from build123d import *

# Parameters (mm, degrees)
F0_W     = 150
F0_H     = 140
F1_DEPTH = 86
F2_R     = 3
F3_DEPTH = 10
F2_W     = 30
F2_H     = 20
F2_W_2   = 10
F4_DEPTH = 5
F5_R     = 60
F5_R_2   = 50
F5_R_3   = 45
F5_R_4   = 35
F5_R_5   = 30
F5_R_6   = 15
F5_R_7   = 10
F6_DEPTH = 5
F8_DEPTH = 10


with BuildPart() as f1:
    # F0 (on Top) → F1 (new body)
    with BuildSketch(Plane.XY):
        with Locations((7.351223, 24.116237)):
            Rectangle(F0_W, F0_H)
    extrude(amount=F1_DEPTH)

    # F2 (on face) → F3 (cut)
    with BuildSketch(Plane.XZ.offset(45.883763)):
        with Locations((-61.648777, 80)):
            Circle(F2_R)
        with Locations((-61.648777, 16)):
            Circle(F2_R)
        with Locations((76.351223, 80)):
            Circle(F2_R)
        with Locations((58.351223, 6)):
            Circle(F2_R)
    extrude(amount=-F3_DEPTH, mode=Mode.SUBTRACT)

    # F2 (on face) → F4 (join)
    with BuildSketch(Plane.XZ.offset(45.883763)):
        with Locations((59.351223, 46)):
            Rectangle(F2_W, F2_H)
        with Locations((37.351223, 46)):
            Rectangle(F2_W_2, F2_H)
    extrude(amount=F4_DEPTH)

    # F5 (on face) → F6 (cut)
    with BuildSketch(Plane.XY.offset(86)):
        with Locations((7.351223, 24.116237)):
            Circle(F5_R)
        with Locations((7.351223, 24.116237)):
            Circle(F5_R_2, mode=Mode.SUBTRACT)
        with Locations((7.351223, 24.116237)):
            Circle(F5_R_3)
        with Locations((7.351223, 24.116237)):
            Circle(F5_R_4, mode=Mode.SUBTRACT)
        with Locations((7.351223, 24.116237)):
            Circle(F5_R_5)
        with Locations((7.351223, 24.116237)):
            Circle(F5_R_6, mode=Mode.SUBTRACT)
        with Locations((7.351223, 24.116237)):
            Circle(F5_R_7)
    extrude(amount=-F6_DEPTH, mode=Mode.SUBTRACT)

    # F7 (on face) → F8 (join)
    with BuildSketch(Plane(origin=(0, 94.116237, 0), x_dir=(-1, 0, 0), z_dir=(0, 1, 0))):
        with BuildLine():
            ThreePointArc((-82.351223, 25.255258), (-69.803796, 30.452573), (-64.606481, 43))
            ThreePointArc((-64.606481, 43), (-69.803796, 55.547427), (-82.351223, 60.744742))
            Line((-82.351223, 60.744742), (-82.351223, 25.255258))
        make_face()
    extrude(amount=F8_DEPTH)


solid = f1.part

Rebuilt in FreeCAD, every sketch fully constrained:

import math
import FreeCAD as App
import Part
import Sketcher

doc = App.newDocument("Part")
body = doc.addObject("PartDesign::Body", "Body")

sketch1 = body.newObject("Sketcher::SketchObject", "Sketch")
sketch1.AttachmentSupport = (doc.getObject("XY_Plane"), [""])
sketch1.MapMode = "FlatFace"
sketch1.addGeometry([
    Part.LineSegment(App.Vector(-68, 94, 0), App.Vector(-68, -46, 0)),
    Part.LineSegment(App.Vector(-68, -46, 0), App.Vector(82, -46, 0)),
    Part.LineSegment(App.Vector(82, -46, 0), App.Vector(82, 94, 0)),
    Part.LineSegment(App.Vector(82, 94, 0), App.Vector(-68, 94, 0)),
], False)
sketch1.addConstraint([
    Sketcher.Constraint("Coincident", 0, 2, 1, 1),
    Sketcher.Constraint("Coincident", 1, 2, 2, 1),
    Sketcher.Constraint("Coincident", 2, 2, 3, 1),
    Sketcher.Constraint("Coincident", 3, 2, 0, 1),
    Sketcher.Constraint("Vertical", 0),
    Sketcher.Constraint("Horizontal", 1),
    Sketcher.Constraint("Vertical", 2),
    Sketcher.Constraint("Horizontal", 3),
    Sketcher.Constraint("DistanceX", 1, 1, 1, 2, 150.0),
    Sketcher.Constraint("DistanceY", 0, 2, 0, 1, 140.0),
    Sketcher.Constraint("DistanceX", 0, 2, -1, 1, 67.648777),
    Sketcher.Constraint("DistanceY", 0, 2, -1, 1, 45.883763),
])
pad1 = body.newObject("PartDesign::Pad", "Pad")
pad1.Profile = sketch1
pad1.Length = 86

sketch2 = body.newObject("Sketcher::SketchObject", "Sketch001")
sketch2.AttachmentSupport = (doc.getObject("XZ_Plane"), [""])
sketch2.MapMode = "FlatFace"
sketch2.AttachmentOffset = App.Placement(App.Vector(0, 0, 45.883763), App.Rotation())
sketch2.addGeometry([
    Part.Circle(App.Vector(-61.6, 80, 0), App.Vector(0, 0, 1), 3),
    Part.Circle(App.Vector(-61.6, 16, 0), App.Vector(0, 0, 1), 3),
    Part.Circle(App.Vector(76.4, 80, 0), App.Vector(0, 0, 1), 3),
    Part.Circle(App.Vector(58.4, 6, 0), App.Vector(0, 0, 1), 3),
], False)
sketch2.addConstraint([
    Sketcher.Constraint("Equal", 0, 1),
    Sketcher.Constraint("Equal", 1, 2),
    Sketcher.Constraint("Equal", 2, 3),
    Sketcher.Constraint("Horizontal", 0, 3, 2, 3),
    Sketcher.Constraint("Vertical", 0, 3, 1, 3),
    Sketcher.Constraint("Diameter", 0, 6.0),
    Sketcher.Constraint("DistanceY", -1, 1, 0, 3, 80.0),
    Sketcher.Constraint("DistanceY", -1, 1, 1, 3, 16.0),
    Sketcher.Constraint("DistanceY", -1, 1, 3, 3, 6.0),
    Sketcher.Constraint("DistanceX", 0, 3, 2, 3, 138.0),
    Sketcher.Constraint("DistanceX", 3, 3, 2, 3, 18.0),
    Sketcher.Constraint("DistanceX", 0, 3, -1, 1, 61.648777),
])
pocket1 = body.newObject("PartDesign::Pocket", "Pocket")
pocket1.Profile = sketch2
pocket1.Length = 10

sketch3 = body.newObject("Sketcher::SketchObject", "Sketch002")
sketch3.AttachmentSupport = (doc.getObject("XZ_Plane"), [""])
sketch3.MapMode = "FlatFace"
sketch3.AttachmentOffset = App.Placement(App.Vector(0, 0, 45.883763), App.Rotation())
sketch3.addGeometry([
    Part.LineSegment(App.Vector(44, 56, 0), App.Vector(44, 36, 0)),
    Part.LineSegment(App.Vector(44, 36, 0), App.Vector(74, 36, 0)),
    Part.LineSegment(App.Vector(74, 36, 0), App.Vector(74, 56, 0)),
    Part.LineSegment(App.Vector(74, 56, 0), App.Vector(44, 56, 0)),
    Part.LineSegment(App.Vector(32, 56, 0), App.Vector(32, 36, 0)),
    Part.LineSegment(App.Vector(32, 36, 0), App.Vector(42, 36, 0)),
    Part.LineSegment(App.Vector(42, 36, 0), App.Vector(42, 56, 0)),
    Part.LineSegment(App.Vector(42, 56, 0), App.Vector(32, 56, 0)),
], False)
sketch3.addConstraint([
    Sketcher.Constraint("Coincident", 0, 2, 1, 1),
    Sketcher.Constraint("Coincident", 1, 2, 2, 1),
    Sketcher.Constraint("Coincident", 2, 2, 3, 1),
    Sketcher.Constraint("Coincident", 3, 2, 0, 1),
    Sketcher.Constraint("Coincident", 4, 2, 5, 1),
    Sketcher.Constraint("Coincident", 5, 2, 6, 1),
    Sketcher.Constraint("Coincident", 6, 2, 7, 1),
    Sketcher.Constraint("Coincident", 7, 2, 4, 1),
    Sketcher.Constraint("Vertical", 0),
    Sketcher.Constraint("Horizontal", 1),
    Sketcher.Constraint("Vertical", 2),
    Sketcher.Constraint("Horizontal", 3),
    Sketcher.Constraint("Vertical", 4),
    Sketcher.Constraint("Horizontal", 5),
    Sketcher.Constraint("Vertical", 6),
    Sketcher.Constraint("Horizontal", 7),
    Sketcher.Constraint("Horizontal", 1, 2, 4, 2),
    Sketcher.Constraint("Horizontal", 3, 2, 6, 2),
    Sketcher.Constraint("DistanceX", 1, 1, 1, 2, 30.0),
    Sketcher.Constraint("DistanceX", 5, 1, 5, 2, 10.0),
    Sketcher.Constraint("DistanceY", 0, 2, 0, 1, 20.0),
    Sketcher.Constraint("DistanceY", -1, 1, 0, 2, 36.0),
    Sketcher.Constraint("DistanceX", 4, 2, 0, 2, 12.0),
    Sketcher.Constraint("DistanceX", -1, 1, 0, 2, 44.351223),
])
pad2 = body.newObject("PartDesign::Pad", "Pad001")
pad2.Profile = sketch3
pad2.Length = 5

sketch4 = body.newObject("Sketcher::SketchObject", "Sketch003")
sketch4.AttachmentSupport = (doc.getObject("XY_Plane"), [""])
sketch4.MapMode = "FlatFace"
sketch4.AttachmentOffset = App.Placement(App.Vector(0, 0, 86), App.Rotation())
sketch4.addGeometry([
    Part.Circle(App.Vector(7, 24, 0), App.Vector(0, 0, 1), 60),
    Part.Circle(App.Vector(7, 24, 0), App.Vector(0, 0, 1), 50),
    Part.Circle(App.Vector(7, 24, 0), App.Vector(0, 0, 1), 45),
    Part.Circle(App.Vector(7, 24, 0), App.Vector(0, 0, 1), 35),
    Part.Circle(App.Vector(7, 24, 0), App.Vector(0, 0, 1), 30),
    Part.Circle(App.Vector(7, 24, 0), App.Vector(0, 0, 1), 15),
    Part.Circle(App.Vector(7, 24, 0), App.Vector(0, 0, 1), 10),
], False)
sketch4.addConstraint([
    Sketcher.Constraint("Coincident", 1, 3, 0, 3),
    Sketcher.Constraint("Coincident", 2, 3, 0, 3),
    Sketcher.Constraint("Coincident", 3, 3, 0, 3),
    Sketcher.Constraint("Coincident", 4, 3, 0, 3),
    Sketcher.Constraint("Coincident", 5, 3, 0, 3),
    Sketcher.Constraint("Coincident", 6, 3, 0, 3),
    Sketcher.Constraint("Diameter", 0, 120.0),
    Sketcher.Constraint("Diameter", 1, 100.0),
    Sketcher.Constraint("Diameter", 2, 90.0),
    Sketcher.Constraint("Diameter", 3, 70.0),
    Sketcher.Constraint("Diameter", 4, 60.0),
    Sketcher.Constraint("Diameter", 5, 30.0),
    Sketcher.Constraint("Diameter", 6, 20.0),
    Sketcher.Constraint("DistanceX", -1, 1, 0, 3, 7.351223),
    Sketcher.Constraint("DistanceY", -1, 1, 0, 3, 24.116237),
])
pocket2 = body.newObject("PartDesign::Pocket", "Pocket001")
pocket2.Profile = sketch4
pocket2.Length = 5

sketch5 = body.newObject("Sketcher::SketchObject", "Sketch004")
sketch5.AttachmentSupport = (doc.getObject("XZ_Plane"), [""])
sketch5.MapMode = "FlatFace"
sketch5.AttachmentOffset = App.Placement(App.Vector(0, 0, -94.116237), App.Rotation())
sketch5.addGeometry([
    Part.ArcOfCircle(Part.Circle(App.Vector(82, 43, 0), App.Vector(0, 0, 1), 18), math.radians(-180), math.radians(-90)),
    Part.ArcOfCircle(Part.Circle(App.Vector(82, 43, 0), App.Vector(0, 0, 1), 18), math.radians(90), math.radians(180)),
    Part.LineSegment(App.Vector(82, 61, 0), App.Vector(82, 25, 0)),
], False)
sketch5.addConstraint([
    Sketcher.Constraint("Tangent", 0, 1, 1, 2),
    Sketcher.Constraint("Coincident", 1, 1, 2, 1),
    Sketcher.Constraint("Coincident", 2, 2, 0, 2),
    Sketcher.Constraint("Vertical", 2),
    Sketcher.Constraint("Equal", 0, 1),
    Sketcher.Constraint("Horizontal", 1, 3, 0, 1),
    Sketcher.Constraint("Vertical", 0, 3, 1, 1),
    Sketcher.Constraint("DistanceY", -1, 1, 0, 3, 43.000001),
    Sketcher.Constraint("Radius", 0, 17.744743),
    Sketcher.Constraint("DistanceX", -1, 1, 0, 1, 64.606481),
])
pad3 = body.newObject("PartDesign::Pad", "Pad002")
pad3.Profile = sketch5
pad3.Length = 10
pad3.Reversed = True

doc.recompute()
